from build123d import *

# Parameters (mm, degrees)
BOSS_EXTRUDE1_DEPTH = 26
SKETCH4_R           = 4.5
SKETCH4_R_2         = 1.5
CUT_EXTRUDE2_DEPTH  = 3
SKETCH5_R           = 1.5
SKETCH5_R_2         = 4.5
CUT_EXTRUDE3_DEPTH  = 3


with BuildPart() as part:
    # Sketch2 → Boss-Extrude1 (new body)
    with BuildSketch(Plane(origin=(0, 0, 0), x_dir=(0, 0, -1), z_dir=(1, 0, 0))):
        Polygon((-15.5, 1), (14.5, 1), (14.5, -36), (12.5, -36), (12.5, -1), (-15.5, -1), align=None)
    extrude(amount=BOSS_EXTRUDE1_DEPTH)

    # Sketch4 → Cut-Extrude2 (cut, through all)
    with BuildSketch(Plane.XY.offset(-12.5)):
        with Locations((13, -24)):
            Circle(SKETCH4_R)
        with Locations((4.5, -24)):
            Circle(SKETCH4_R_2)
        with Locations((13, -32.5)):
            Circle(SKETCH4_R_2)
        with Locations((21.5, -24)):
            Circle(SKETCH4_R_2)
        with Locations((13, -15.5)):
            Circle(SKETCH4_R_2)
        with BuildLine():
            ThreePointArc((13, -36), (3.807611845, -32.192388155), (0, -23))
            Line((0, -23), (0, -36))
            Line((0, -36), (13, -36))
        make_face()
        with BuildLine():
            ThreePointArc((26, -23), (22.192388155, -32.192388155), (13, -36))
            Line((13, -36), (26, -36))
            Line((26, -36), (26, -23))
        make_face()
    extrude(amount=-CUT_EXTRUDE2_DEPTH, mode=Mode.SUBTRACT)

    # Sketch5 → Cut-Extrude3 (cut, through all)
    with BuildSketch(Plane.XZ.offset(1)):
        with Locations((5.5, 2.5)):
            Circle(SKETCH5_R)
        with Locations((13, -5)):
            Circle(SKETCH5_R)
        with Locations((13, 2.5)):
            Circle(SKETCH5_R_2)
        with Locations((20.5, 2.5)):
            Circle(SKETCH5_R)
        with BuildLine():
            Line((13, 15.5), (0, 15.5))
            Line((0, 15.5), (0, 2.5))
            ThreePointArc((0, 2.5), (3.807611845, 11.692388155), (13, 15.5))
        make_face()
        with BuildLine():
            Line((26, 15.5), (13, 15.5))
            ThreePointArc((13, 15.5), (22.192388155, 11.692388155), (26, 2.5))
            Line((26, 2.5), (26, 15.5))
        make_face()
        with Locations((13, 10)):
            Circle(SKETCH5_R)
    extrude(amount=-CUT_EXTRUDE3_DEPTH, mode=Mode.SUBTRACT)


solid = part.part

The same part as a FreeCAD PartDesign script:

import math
import FreeCAD as App
import Part
import Sketcher

V = App.Vector
Q = App.Units.Quantity


def add_polygon(sketch, points):
    """Adds a closed chain of lines whose ends are joined by coincident constraints."""
    first, n = sketch.GeometryCount, len(points)
    for a, b in zip(points, points[1:] + points[:1]):
        sketch.addGeometry(Part.LineSegment(App.Vector(*a, 0), App.Vector(*b, 0)), False)
    for i in range(n):
        sketch.addConstraint(Sketcher.Constraint("Coincident", first + i, 2, first + (i + 1) % n, 1))

doc = App.newDocument("Part")
params = doc.addObject("Spreadsheet::Sheet", "Params")
for row, (alias, value) in enumerate([
    ("sketch1_width", "2 mm"),
    ("sketch1_width2", "35 mm"),
    ("sketch1_height", "30 mm"),
    ("pad1_length", "26 mm"),
    ("sketch2_diameter", "9 mm"),
    ("sketch2_diameter2", "3 mm"),
    ("sketch2_radius", "13 mm"),
    ("sketch3_diameter", "3 mm"),
    ("sketch3_diameter2", "9 mm"),
    ("sketch3_radius", "13 mm"),
], start=1):
    params.set(f"A{row}", alias)
    params.set(f"B{row}", "=" + value)
    params.setAlias(f"B{row}", alias)

body = doc.addObject("PartDesign::Body", "Body")

# Sketch on YZ plane
sketch1 = doc.addObject("Sketcher::SketchObject", "Sketch")
body.addObject(sketch1)
sketch1.AttachmentSupport = (doc.YZ_Plane, [""])
sketch1.MapMode = "FlatFace"
add_polygon(sketch1, [(1, -14.5), (1, 15.5), (-1, 15.5), (-1, -12.5), (-36, -12.5), (-36, -14.5)])  # lines 0-5
sketch1.addConstraint([
    Sketcher.Constraint("Vertical", 0),
    Sketcher.Constraint("Horizontal", 1),
    Sketcher.Constraint("Vertical", 2),
    Sketcher.Constraint("Horizontal", 3),
    Sketcher.Constraint("Vertical", 4),
    Sketcher.Constraint("Horizontal", 5),
    Sketcher.Constraint("Equal", 1, 4),
    Sketcher.Constraint("DistanceX", 1, 2, 1, 1, Q("2 mm")),
    Sketcher.Constraint("DistanceX", 3, 2, 3, 1, Q("35 mm")),
    Sketcher.Constraint("DistanceY", 0, 1, 0, 2, Q("30 mm")),
    Sketcher.Constraint("DistanceX", -1, 1, 0, 2, Q("1 mm")),
    Sketcher.Constraint("DistanceY", -1, 1, 0, 2, Q("15.5 mm")),
])
sketch1.setExpression("Constraints[13]", "Params.sketch1_width")
sketch1.setExpression("Constraints[14]", "Params.sketch1_width2")
sketch1.setExpression("Constraints[15]", "Params.sketch1_height")
pad1 = doc.addObject("PartDesign::Pad", "Pad")
body.addObject(pad1)
pad1.Profile = sketch1
pad1.setExpression("Length", "Params.pad1_length")

# Sketch on XY plane
sketch2 = doc.addObject("Sketcher::SketchObject", "Sketch001")
body.addObject(sketch2)
sketch2.AttachmentSupport = (doc.XY_Plane, [""])
sketch2.MapMode = "FlatFace"
sketch2.AttachmentOffset = App.Placement(V(0, 0, -12.5), App.Rotation())
sketch2.addGeometry([
    Part.Circle(V(13, -24, 0), V(0, 0, 1), 4.5),  # 0
    Part.Circle(V(4.5, -24, 0), V(0, 0, 1), 1.5),  # 1
    Part.Circle(V(13, -32.5, 0), V(0, 0, 1), 1.5),  # 2
    Part.Circle(V(21.5, -24, 0), V(0, 0, 1), 1.5),  # 3
    Part.Circle(V(13, -15.5, 0), V(0, 0, 1), 1.5),  # 4
    Part.ArcOfCircle(Part.Circle(V(13, -23, 0), V(0, 0, 1), 13), math.radians(-180), math.radians(-90)),  # 5
    Part.LineSegment(V(0, -23, 0), V(0, -36, 0)),  # 6
    Part.LineSegment(V(0, -36, 0), V(13, -36, 0)),  # 7
    Part.ArcOfCircle(Part.Circle(V(13, -23, 0), V(0, 0, 1), 13), math.radians(-90), math.radians(0)),  # 8
    Part.LineSegment(V(13, -36, 0), V(26, -36, 0)),  # 9
    Part.LineSegment(V(26, -36, 0), V(26, -23, 0)),  # 10
], False)
sketch2.addConstraint([
    Sketcher.Constraint("Tangent", 5, 1, 6, 1),
    Sketcher.Constraint("Coincident", 6, 2, 7, 1),
    Sketcher.Constraint("Tangent", 7, 2, 5, 2),
    Sketcher.Constraint("Tangent", 8, 1, 9, 1),
    Sketcher.Constraint("Coincident", 9, 2, 10, 1),
    Sketcher.Constraint("Tangent", 10, 2, 8, 2),
    Sketcher.Constraint("Vertical", 6),
    Sketcher.Constraint("Horizontal", 7),
    Sketcher.Constraint("Horizontal", 9),
    Sketcher.Constraint("Vertical", 10),
    Sketcher.Constraint("Coincident", 8, 3, 5, 3),
    Sketcher.Constraint("Equal", 1, 2),
    Sketcher.Constraint("Equal", 2, 3),
    Sketcher.Constraint("Equal", 3, 4),
    Sketcher.Constraint("Equal", 5, 8),
    Sketcher.Constraint("PointOnObject", 5, 1, -2),
    Sketcher.Constraint("Horizontal", 0, 3, 1, 3),
    Sketcher.Constraint("Horizontal", 1, 3, 3, 3),
    Sketcher.Constraint("Vertical", 0, 3, 2, 3),
    Sketcher.Constraint("Vertical", 2, 3, 4, 3),
    Sketcher.Constraint("Vertical", 4, 3, 5, 3),
    Sketcher.Constraint("Diameter", 0, Q("9 mm")),
    Sketcher.Constraint("Diameter", 1, Q("3 mm")),
    Sketcher.Constraint("Radius", 5, Q("13 mm")),
    Sketcher.Constraint("DistanceY", 0, 3, -1, 1, Q("24 mm")),
    Sketcher.Constraint("DistanceY", 5, 3, -1, 1, Q("23 mm")),
    Sketcher.Constraint("DistanceX", 1, 3, 3, 3, Q("17 mm")),
    Sketcher.Constraint("DistanceY", 2, 3, 4, 3, Q("17 mm")),
    Sketcher.Constraint("DistanceX", -1, 1, 1, 3, Q("4.5 mm")),
    Sketcher.Constraint("DistanceY", 2, 3, -1, 1, Q("32.5 mm")),
])
sketch2.setExpression("Constraints[21]", "Params.sketch2_diameter")
sketch2.setExpression("Constraints[22]", "Params.sketch2_diameter2")
sketch2.setExpression("Constraints[23]", "Params.sketch2_radius")
pocket1 = doc.addObject("PartDesign::Pocket", "Pocket")
body.addObject(pocket1)
pocket1.Profile = sketch2
pocket1.Type = "ThroughAll"

# Sketch on XZ plane
sketch3 = doc.addObject("Sketcher::SketchObject", "Sketch002")
body.addObject(sketch3)
sketch3.AttachmentSupport = (doc.XZ_Plane, [""])
sketch3.MapMode = "FlatFace"
sketch3.AttachmentOffset = App.Placement(V(0, 0, 1), App.Rotation())
sketch3.addGeometry([
    Part.Circle(V(5.5, 2.5, 0), V(0, 0, 1), 1.5),  # 0
    Part.Circle(V(13, -5, 0), V(0, 0, 1), 1.5),  # 1
    Part.Circle(V(13, 2.5, 0), V(0, 0, 1), 4.5),  # 2
    Part.Circle(V(20.5, 2.5, 0), V(0, 0, 1), 1.5),  # 3
    Part.LineSegment(V(13, 15.5, 0), V(0, 15.5, 0)),  # 4
    Part.LineSegment(V(0, 15.5, 0), V(0, 2.5, 0)),  # 5
    Part.ArcOfCircle(Part.Circle(V(13, 2.5, 0), V(0, 0, 1), 13), math.radians(90), math.radians(180)),  # 6
    Part.LineSegment(V(26, 15.5, 0), V(13, 15.5, 0)),  # 7
    Part.ArcOfCircle(Part.Circle(V(13, 2.5, 0), V(0, 0, 1), 13), math.radians(0), math.radians(90)),  # 8
    Part.LineSegment(V(26, 2.5, 0), V(26, 15.5, 0)),  # 9
    Part.Circle(V(13, 10, 0), V(0, 0, 1), 1.5),  # 10
], False)
sketch3.addConstraint([
    Sketcher.Constraint("Coincident", 4, 2, 5, 1),
    Sketcher.Constraint("Tangent", 5, 2, 6, 2),
    Sketcher.Constraint("Tangent", 6, 1, 4, 1),
    Sketcher.Constraint("Tangent", 7, 2, 8, 2),
    Sketcher.Constraint("Tangent", 8, 1, 9, 1),
    Sketcher.Constraint("Coincident", 9, 2, 7, 1),
    Sketcher.Constraint("Horizontal", 4),
    Sketcher.Constraint("Vertical", 5),
    Sketcher.Constraint("Horizontal", 7),
    Sketcher.Constraint("Vertical", 9),
    Sketcher.Constraint("Coincident", 6, 3, 2, 3),
    Sketcher.Constraint("Coincident", 8, 3, 2, 3),
    Sketcher.Constraint("Equal", 0, 1),
    Sketcher.Constraint("Equal", 1, 3),
    Sketcher.Constraint("Equal", 6, 8),
    Sketcher.Constraint("Equal", 3, 10),
    Sketcher.Constraint("PointOnObject", 4, 2, -2),
    Sketcher.Constraint("Horizontal", 0, 3, 2, 3),
    Sketcher.Constraint("Horizontal", 2, 3, 3, 3),
    Sketcher.Constraint("Vertical", 1, 3, 2, 3),
    Sketcher.Constraint("Vertical", 8, 3, 10, 3),
    Sketcher.Constraint("Diameter", 0, Q("3 mm")),
    Sketcher.Constraint("Diameter", 2, Q("9 mm")),
    Sketcher.Constraint("Radius", 6, Q("13 mm")),
    Sketcher.Constraint("DistanceY", 1, 3, -1, 1, Q("5 mm")),
    Sketcher.Constraint("DistanceY", -1, 1, 10, 3, Q("10 mm")),
    Sketcher.Constraint("DistanceX", 0, 3, 3, 3, Q("15 mm")),
    Sketcher.Constraint("DistanceX", -1, 1, 0, 3, Q("5.5 mm")),
    Sketcher.Constraint("DistanceY", -1, 1, 0, 3, Q("2.5 mm")),
])
sketch3.setExpression("Constraints[21]", "Params.sketch3_diameter")
sketch3.setExpression("Constraints[22]", "Params.sketch3_diameter2")
sketch3.setExpression("Constraints[23]", "Params.sketch3_radius")
pocket2 = doc.addObject("PartDesign::Pocket", "Pocket001")
body.addObject(pocket2)
pocket2.Profile = sketch3
pocket2.Type = "ThroughAll"

doc.recompute()
